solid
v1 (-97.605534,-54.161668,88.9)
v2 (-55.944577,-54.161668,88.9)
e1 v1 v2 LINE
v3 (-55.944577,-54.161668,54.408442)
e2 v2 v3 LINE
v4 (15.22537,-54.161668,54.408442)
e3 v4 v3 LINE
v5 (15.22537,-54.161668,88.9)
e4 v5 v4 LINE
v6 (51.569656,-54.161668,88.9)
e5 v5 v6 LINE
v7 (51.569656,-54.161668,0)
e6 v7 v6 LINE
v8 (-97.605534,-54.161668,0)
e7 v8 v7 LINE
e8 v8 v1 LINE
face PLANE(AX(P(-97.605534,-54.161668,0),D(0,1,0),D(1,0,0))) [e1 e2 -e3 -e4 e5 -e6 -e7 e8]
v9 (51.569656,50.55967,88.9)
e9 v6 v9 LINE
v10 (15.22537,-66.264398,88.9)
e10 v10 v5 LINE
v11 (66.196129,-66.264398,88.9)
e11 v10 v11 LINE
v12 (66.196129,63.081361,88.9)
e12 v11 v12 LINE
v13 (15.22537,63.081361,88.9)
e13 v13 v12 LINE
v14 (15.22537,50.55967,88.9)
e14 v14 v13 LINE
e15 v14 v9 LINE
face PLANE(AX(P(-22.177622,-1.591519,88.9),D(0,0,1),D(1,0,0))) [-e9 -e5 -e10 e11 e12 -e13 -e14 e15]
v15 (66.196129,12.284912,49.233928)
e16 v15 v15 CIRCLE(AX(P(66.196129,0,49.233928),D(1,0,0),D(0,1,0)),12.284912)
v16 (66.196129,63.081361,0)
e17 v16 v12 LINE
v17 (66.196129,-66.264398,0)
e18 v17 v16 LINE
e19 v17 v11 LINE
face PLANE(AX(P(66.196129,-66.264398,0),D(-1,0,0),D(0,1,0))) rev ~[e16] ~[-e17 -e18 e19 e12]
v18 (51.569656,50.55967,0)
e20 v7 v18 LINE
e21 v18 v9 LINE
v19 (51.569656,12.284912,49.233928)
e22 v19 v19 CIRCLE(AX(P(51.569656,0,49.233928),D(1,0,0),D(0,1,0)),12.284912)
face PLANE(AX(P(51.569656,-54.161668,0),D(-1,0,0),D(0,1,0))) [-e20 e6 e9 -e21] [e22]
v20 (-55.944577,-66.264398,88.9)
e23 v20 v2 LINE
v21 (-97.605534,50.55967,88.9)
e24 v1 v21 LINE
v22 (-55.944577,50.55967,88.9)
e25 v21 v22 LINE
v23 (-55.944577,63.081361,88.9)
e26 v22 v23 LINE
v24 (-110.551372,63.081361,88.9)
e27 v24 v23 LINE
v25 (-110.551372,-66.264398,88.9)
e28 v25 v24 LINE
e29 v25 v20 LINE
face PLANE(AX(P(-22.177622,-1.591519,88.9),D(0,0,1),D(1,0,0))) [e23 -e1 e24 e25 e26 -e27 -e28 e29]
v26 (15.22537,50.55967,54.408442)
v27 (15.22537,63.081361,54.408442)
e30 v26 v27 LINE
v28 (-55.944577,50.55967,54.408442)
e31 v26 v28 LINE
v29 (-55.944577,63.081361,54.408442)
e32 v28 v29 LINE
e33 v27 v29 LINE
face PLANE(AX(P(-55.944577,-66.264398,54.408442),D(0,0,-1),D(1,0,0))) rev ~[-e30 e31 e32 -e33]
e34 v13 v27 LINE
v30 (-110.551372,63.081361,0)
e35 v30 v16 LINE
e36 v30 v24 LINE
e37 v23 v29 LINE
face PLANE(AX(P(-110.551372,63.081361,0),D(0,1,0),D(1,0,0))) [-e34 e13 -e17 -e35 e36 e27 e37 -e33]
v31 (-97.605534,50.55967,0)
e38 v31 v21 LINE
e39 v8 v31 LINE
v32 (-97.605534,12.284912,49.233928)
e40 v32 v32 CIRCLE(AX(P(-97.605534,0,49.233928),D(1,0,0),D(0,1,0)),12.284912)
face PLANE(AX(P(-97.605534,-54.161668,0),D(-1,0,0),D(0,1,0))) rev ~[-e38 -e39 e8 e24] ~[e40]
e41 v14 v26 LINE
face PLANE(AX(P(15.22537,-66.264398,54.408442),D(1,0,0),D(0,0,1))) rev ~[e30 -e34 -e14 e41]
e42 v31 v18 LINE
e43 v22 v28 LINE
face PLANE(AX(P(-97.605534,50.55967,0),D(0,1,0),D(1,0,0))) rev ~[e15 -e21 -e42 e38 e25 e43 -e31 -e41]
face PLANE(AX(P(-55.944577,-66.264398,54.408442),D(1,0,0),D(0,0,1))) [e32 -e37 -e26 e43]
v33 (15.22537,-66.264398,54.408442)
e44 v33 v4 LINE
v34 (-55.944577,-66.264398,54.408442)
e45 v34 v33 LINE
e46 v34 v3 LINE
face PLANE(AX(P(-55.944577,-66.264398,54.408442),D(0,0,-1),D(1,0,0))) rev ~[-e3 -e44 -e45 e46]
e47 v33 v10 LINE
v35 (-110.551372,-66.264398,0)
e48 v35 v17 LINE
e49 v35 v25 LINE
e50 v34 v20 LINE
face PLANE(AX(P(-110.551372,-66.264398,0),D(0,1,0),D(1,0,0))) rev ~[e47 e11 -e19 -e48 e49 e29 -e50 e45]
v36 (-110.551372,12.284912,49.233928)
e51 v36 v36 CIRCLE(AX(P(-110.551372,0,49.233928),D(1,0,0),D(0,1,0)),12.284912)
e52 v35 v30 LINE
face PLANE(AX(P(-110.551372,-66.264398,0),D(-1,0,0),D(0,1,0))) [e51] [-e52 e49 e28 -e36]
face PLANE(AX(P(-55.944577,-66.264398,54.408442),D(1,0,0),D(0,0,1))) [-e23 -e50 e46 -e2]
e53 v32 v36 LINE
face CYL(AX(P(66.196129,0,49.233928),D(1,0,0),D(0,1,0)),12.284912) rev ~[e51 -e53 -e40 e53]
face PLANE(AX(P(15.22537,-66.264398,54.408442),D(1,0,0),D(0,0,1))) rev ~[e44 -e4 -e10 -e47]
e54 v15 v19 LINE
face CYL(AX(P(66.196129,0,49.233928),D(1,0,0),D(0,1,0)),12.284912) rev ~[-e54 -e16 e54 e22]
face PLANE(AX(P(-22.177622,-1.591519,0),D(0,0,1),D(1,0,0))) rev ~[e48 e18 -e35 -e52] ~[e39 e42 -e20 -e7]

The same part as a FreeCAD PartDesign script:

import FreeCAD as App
import Part
import Sketcher
Q = App.Units.Quantity


def add_polygon(sketch, points):
    """Adds a closed chain of lines whose ends are joined by coincident constraints."""
    first, n = sketch.GeometryCount, len(points)
    for a, b in zip(points, points[1:] + points[:1]):
        sketch.addGeometry(Part.LineSegment(App.Vector(*a, 0), App.Vector(*b, 0)), False)
    for i in range(n):
        sketch.addConstraint(Sketcher.Constraint("Coincident", first + i, 2, first + (i + 1) % n, 1))

doc = App.newDocument("Part")
params = doc.addObject("Spreadsheet::Sheet", "Params")
for row, (alias, value) in enumerate([
    ("pad1_length", "3.5 in"),
    ("pocket1_length", "6 in"),
    ("pocket2_length", "10 in"),
], start=1):
    params.set(f"A{row}", alias)
    params.set(f"B{row}", "=" + value)
    params.setAlias(f"B{row}", alias)

body = doc.addObject("PartDesign::Body", "Body")

# Sketch on XY plane
sketch1 = body.newObject("Sketcher::SketchObject", "Sketch")
sketch1.AttachmentSupport = (doc.getObject("XY_Plane"), [""])
sketch1.MapMode = "FlatFace"
add_polygon(sketch1, [(-111, 63), (-111, -66), (66, -66), (66, 63)])  # lines 0-3
add_polygon(sketch1, [(52, -54), (-98, -54), (-98, 51), (52, 51)])  # lines 4-7
sketch1.addConstraint(Sketcher.Constraint("Vertical", 0))
sketch1.addConstraint(Sketcher.Constraint("Horizontal", 1))
sketch1.addConstraint(Sketcher.Constraint("Vertical", 2))
sketch1.addConstraint(Sketcher.Constraint("Horizontal", 3))
sketch1.addConstraint(Sketcher.Constraint("Horizontal", 4))
sketch1.addConstraint(Sketcher.Constraint("Vertical", 5))
sketch1.addConstraint(Sketcher.Constraint("Horizontal", 6))
sketch1.addConstraint(Sketcher.Constraint("Vertical", 7))
sketch1.addConstraint(Sketcher.Constraint("DistanceX", 1, 1, 1, 2, Q("176.747501 mm")))
sketch1.addConstraint(Sketcher.Constraint("DistanceX", 4, 2, 4, 1, Q("149.175189 mm")))
sketch1.addConstraint(Sketcher.Constraint("DistanceY", 0, 2, 0, 1, Q("129.34576 mm")))
sketch1.addConstraint(Sketcher.Constraint("DistanceY", 0, 2, -1, 1, Q("66.264398 mm")))
sketch1.addConstraint(Sketcher.Constraint("DistanceY", 5, 1, 5, 2, Q("104.721338 mm")))
sketch1.addConstraint(Sketcher.Constraint("DistanceX", -1, 1, 1, 2, Q("66.196129 mm")))
sketch1.addConstraint(Sketcher.Constraint("DistanceY", -1, 1, 5, 2, Q("50.55967 mm")))
sketch1.addConstraint(Sketcher.Constraint("DistanceX", 0, 2, 4, 2, Q("12.945838 mm")))
pad1 = body.newObject("PartDesign::Pad", "Pad")
pad1.Profile = sketch1
pad1.setExpression("Length", "Params.pad1_length")

# Sketch on XZ plane
sketch2 = body.newObject("Sketcher::SketchObject", "Sketch001")
sketch2.AttachmentSupport = (doc.getObject("XZ_Plane"), [""])
sketch2.MapMode = "FlatFace"
sketch2.AttachmentOffset = App.Placement(App.Vector(0, 0, 66.264398), App.Rotation())
add_polygon(sketch2, [(-56, 89), (-56, 54), (15, 54), (15, 89)])  # lines 0-3
sketch2.addConstraint(Sketcher.Constraint("Vertical", 0))
sketch2.addConstraint(Sketcher.Constraint("Horizontal", 1))
sketch2.addConstraint(Sketcher.Constraint("Vertical", 2))
sketch2.addConstraint(Sketcher.Constraint("Horizontal", 3))
sketch2.addConstraint(Sketcher.Constraint("DistanceY", -1, 1, 2, 2, Q("3.5 in")))
sketch2.addConstraint(Sketcher.Constraint("DistanceX", 1, 1, 1, 2, Q("71.169947 mm")))
sketch2.addConstraint(Sketcher.Constraint("DistanceY", 0, 2, 0, 1, Q("34.491558 mm")))
sketch2.addConstraint(Sketcher.Constraint("DistanceX", -1, 1, 1, 2, Q("15.22537 mm")))
pocket1 = body.newObject("PartDesign::Pocket", "Pocket")
pocket1.Profile = sketch2
pocket1.setExpression("Length", "Params.pocket1_length")

# Sketch on YZ plane
sketch3 = body.newObject("Sketcher::SketchObject", "Sketch002")
sketch3.AttachmentSupport = (doc.getObject("YZ_Plane"), [""])
sketch3.MapMode = "FlatFace"
sketch3.AttachmentOffset = App.Placement(App.Vector(0, 0, 66.196129), App.Rotation())
sketch3.addGeometry(Part.Circle(App.Vector(0, 49, 0), App.Vector(0, 0, 1), 12), False)
sketch3.addConstraint(Sketcher.Constraint("PointOnObject", 0, 3, -2))
sketch3.addConstraint(Sketcher.Constraint("Diameter", 0, Q("24.569825 mm")))
sketch3.addConstraint(Sketcher.Constraint("DistanceY", -1, 1, 0, 3, Q("49.233928 mm")))
pocket2 = body.newObject("PartDesign::Pocket", "Pocket001")
pocket2.Profile = sketch3
pocket2.setExpression("Length", "Params.pocket2_length")

doc.recompute()
